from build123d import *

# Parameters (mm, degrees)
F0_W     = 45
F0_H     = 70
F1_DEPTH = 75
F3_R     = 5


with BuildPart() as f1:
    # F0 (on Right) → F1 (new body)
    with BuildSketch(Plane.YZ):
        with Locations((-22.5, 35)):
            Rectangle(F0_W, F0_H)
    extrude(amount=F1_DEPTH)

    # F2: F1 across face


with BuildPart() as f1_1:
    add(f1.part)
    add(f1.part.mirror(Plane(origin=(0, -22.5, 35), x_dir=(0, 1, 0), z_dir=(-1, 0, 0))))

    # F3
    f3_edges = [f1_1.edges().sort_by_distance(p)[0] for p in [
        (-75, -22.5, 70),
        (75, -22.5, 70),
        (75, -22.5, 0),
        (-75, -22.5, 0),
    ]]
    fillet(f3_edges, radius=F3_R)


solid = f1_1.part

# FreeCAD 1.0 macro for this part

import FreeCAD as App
import Part
import Sketcher
from FreeCAD import Vector


def edges_at(feature, points):
    """Names of the edges that pass closest to the given points."""
    edges = feature.Shape.Edges
    near = lambda p: min(range(len(edges)), key=lambda i: edges[i].distToShape(Part.Vertex(*p))[0])
    return sorted({f"Edge{near(p) + 1}" for p in points})

doc = App.newDocument("Part")
body = doc.addObject("PartDesign::Body", "Body")

# Sketch on YZ plane
sketch1 = body.newObject("Sketcher::SketchObject", "Sketch")
sketch1.AttachmentSupport = (doc.getObject("YZ_Plane"), [""])
sketch1.MapMode = "FlatFace"
sketch1.addGeometry(Part.LineSegment(Vector(-45, 70, 0), Vector(-45, 0, 0)), False)
sketch1.addGeometry(Part.LineSegment(Vector(-45, 0, 0), Vector(0, 0, 0)), False)
sketch1.addGeometry(Part.LineSegment(Vector(0, 0, 0), Vector(0, 70, 0)), False)
sketch1.addGeometry(Part.LineSegment(Vector(0, 70, 0), Vector(-45, 70, 0)), False)
sketch1.addConstraint(Sketcher.Constraint("Coincident", 0, 2, 1, 1))
sketch1.addConstraint(Sketcher.Constraint("Coincident", 1, 2, 2, 1))
sketch1.addConstraint(Sketcher.Constraint("Coincident", 2, 2, 3, 1))
sketch1.addConstraint(Sketcher.Constraint("Coincident", 3, 2, 0, 1))
sketch1.addConstraint(Sketcher.Constraint("Vertical", 0))
sketch1.addConstraint(Sketcher.Constraint("Horizontal", 1))
sketch1.addConstraint(Sketcher.Constraint("Vertical", 2))
sketch1.addConstraint(Sketcher.Constraint("Horizontal", 3))
sketch1.addConstraint(Sketcher.Constraint("Coincident", 1, 2, -1, 1))
sketch1.addConstraint(Sketcher.Constraint("DistanceX", 1, 1, 1, 2, 45.0))
sketch1.addConstraint(Sketcher.Constraint("DistanceY", 0, 2, 0, 1, 70.0))
pad1 = body.newObject("PartDesign::Pad", "Pad")
pad1.Profile = sketch1
pad1.Length = 75
body2 = doc.addObject("PartDesign::Body", "Body001")
doc.recompute()

body2.BaseFeature = body
doc.recompute()

mirroring = doc.addObject("Part::Mirroring", "Mirroring")
mirroring.Source = body
mirroring.Base = Vector(0, -22.5, 35)
mirroring.Normal = Vector(-1, 0, 0)
body3 = doc.addObject("PartDesign::Body", "Body002")
body3.BaseFeature = mirroring
boolean = body2.newObject("PartDesign::Boolean", "Boolean")
boolean.Type = "Fuse"
boolean.addObjects([body3])
doc.recompute()

fillet = body2.newObject("PartDesign::Fillet", "Fillet")
fillet.Base = (boolean, edges_at(boolean, [
    (-75, -22.5, 70),
    (75, -22.5, 70),
    (75, -22.5, 0),
    (-75, -22.5, 0),
]))
fillet.Radius = 5
mirroring.Visibility = False

doc.recompute()
